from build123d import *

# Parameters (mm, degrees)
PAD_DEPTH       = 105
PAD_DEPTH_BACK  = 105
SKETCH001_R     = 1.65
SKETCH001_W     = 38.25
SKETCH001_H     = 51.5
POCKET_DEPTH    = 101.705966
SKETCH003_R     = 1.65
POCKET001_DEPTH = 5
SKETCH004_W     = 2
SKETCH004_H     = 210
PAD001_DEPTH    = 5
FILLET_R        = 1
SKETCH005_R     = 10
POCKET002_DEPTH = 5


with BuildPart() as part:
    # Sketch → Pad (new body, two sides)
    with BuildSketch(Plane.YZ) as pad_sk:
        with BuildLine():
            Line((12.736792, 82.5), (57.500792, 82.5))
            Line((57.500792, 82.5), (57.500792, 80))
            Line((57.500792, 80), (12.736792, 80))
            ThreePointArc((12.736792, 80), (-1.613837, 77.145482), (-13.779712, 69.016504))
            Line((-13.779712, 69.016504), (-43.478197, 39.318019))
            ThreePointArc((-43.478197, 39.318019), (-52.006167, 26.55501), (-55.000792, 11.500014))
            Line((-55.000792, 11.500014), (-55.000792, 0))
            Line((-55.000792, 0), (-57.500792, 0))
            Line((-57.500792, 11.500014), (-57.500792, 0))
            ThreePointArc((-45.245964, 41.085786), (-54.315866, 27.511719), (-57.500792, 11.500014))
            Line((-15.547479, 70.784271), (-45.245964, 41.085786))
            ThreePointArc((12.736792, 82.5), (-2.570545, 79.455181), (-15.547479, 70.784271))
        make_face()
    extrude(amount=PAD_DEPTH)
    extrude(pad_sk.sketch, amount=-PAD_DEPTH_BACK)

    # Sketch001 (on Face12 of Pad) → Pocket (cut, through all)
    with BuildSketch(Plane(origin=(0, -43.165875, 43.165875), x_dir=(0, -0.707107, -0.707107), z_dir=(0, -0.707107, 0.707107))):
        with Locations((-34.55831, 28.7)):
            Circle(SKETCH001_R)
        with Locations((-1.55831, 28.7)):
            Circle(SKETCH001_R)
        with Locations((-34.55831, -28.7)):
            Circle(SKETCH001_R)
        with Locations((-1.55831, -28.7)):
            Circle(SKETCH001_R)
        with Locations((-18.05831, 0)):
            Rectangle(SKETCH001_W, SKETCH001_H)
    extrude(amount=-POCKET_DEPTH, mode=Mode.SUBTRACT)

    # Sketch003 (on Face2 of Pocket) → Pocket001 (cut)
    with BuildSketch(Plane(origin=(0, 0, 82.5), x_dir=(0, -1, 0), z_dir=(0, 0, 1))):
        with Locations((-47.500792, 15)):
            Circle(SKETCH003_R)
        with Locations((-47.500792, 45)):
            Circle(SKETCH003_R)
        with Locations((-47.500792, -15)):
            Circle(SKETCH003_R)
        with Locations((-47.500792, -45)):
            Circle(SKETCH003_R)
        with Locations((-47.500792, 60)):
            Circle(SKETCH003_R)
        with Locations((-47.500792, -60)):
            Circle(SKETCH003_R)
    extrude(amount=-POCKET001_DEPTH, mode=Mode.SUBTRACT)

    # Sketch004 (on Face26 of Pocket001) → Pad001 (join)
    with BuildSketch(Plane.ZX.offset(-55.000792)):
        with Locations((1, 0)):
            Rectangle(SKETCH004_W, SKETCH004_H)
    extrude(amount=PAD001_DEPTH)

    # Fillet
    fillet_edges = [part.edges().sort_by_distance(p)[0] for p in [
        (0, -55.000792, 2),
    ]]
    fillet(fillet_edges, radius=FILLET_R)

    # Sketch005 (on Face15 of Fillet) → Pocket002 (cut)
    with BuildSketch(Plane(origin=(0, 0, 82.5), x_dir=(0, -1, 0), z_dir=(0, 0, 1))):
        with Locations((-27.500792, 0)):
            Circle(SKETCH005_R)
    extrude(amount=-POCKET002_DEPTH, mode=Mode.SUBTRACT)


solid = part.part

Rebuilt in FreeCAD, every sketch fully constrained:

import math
import FreeCAD as App
import Part
import Sketcher

V = App.Vector
Q = App.Units.Quantity


def edges_at(feature, points):
    """Names of the edges that pass closest to the given points."""
    edges = feature.Shape.Edges
    near = lambda p: min(range(len(edges)), key=lambda i: edges[i].distToShape(Part.Vertex(*p))[0])
    return sorted({f"Edge{near(p) + 1}" for p in points})

doc = App.newDocument("Part")
body = doc.addObject("PartDesign::Body", "Body")

sketch1 = body.newObject("Sketcher::SketchObject", "Sketch")
sketch1.AttachmentSupport = (doc.getObject("YZ_Plane"), [""])
sketch1.MapMode = "FlatFace"
sketch1.addGeometry([
    Part.LineSegment(V(57.5, 82.5, 0), V(12.7, 82.5, 0)),
    Part.ArcOfCircle(Part.Circle(V(12.7, 42.5, 0), V(0, 0, 1), 40), math.radians(90), math.radians(135)),
    Part.LineSegment(V(-15.5, 70.8, 0), V(-45.2, 41.1, 0)),
    Part.ArcOfCircle(Part.Circle(V(-15.7, 11.5, 0), V(0, 0, 1), 41.8), math.radians(135), math.radians(180)),
    Part.LineSegment(V(-57.5, 11.5, 0), V(-57.5, 0, 0)),
    Part.LineSegment(V(-57.5, 0, 0), V(-55, 0, 0)),
    Part.LineSegment(V(-55, 0, 0), V(-55, 11.5, 0)),
    Part.ArcOfCircle(Part.Circle(V(-15.7, 11.5, 0), V(0, 0, 1), 39.3), math.radians(135), math.radians(180)),
    Part.LineSegment(V(-43.5, 39.3, 0), V(-13.8, 69, 0)),
    Part.ArcOfCircle(Part.Circle(V(12.7, 42.5, 0), V(0, 0, 1), 37.5), math.radians(90), math.radians(135)),
    Part.LineSegment(V(12.7, 80, 0), V(57.5, 80, 0)),
    Part.LineSegment(V(57.5, 80, 0), V(57.5, 82.5, 0)),
], False)
sketch1.addConstraint([
    Sketcher.Constraint("Tangent", 0, 2, 1, 1),
    Sketcher.Constraint("Tangent", 1, 2, 2, 1),
    Sketcher.Constraint("Tangent", 2, 2, 3, 1),
    Sketcher.Constraint("Tangent", 3, 2, 4, 1),
    Sketcher.Constraint("Coincident", 4, 2, 5, 1),
    Sketcher.Constraint("Coincident", 5, 2, 6, 1),
    Sketcher.Constraint("Tangent", 6, 2, 7, 2),
    Sketcher.Constraint("Tangent", 7, 1, 8, 1),
    Sketcher.Constraint("Tangent", 8, 2, 9, 2),
    Sketcher.Constraint("Tangent", 9, 1, 10, 1),
    Sketcher.Constraint("Coincident", 10, 2, 11, 1),
    Sketcher.Constraint("Coincident", 11, 2, 0, 1),
    Sketcher.Constraint("Horizontal", 0),
    Sketcher.Constraint("Vertical", 4),
    Sketcher.Constraint("Horizontal", 5),
    Sketcher.Constraint("Vertical", 6),
    Sketcher.Constraint("Horizontal", 10),
    Sketcher.Constraint("Vertical", 11),
    Sketcher.Constraint("Coincident", 7, 3, 3, 3),
    Sketcher.Constraint("Coincident", 9, 3, 1, 3),
    Sketcher.Constraint("PointOnObject", 4, 2, -1),
    Sketcher.Constraint("Parallel", 2, 8),
    Sketcher.Constraint("Radius", 9, 37.500001),
    Sketcher.Constraint("Angle", 2, Q("-135 deg")),
    Sketcher.Constraint("Distance", 2, 42.0),
    Sketcher.Constraint("DistanceX", 5, 1, 5, 2, 2.5),
    Sketcher.Constraint("DistanceY", -1, 1, 9, 1, 80.0),
    Sketcher.Constraint("Radius", 7, 39.3406),
    Sketcher.Constraint("DistanceX", 0, 2, 0, 1, 44.764),
    Sketcher.Constraint("DistanceX", 7, 3, -1, 1, 15.660192),
])
pad1 = body.newObject("PartDesign::Pad", "Pad")
pad1.Profile = sketch1
pad1.Type = "TwoLengths"
pad1.Length = 105
pad1.Length2 = 105

sketch2 = body.newObject("Sketcher::SketchObject", "Sketch001")
sketch2.Placement = App.Placement(V(0, -43.165875, 43.165875), App.Rotation(V(0, -0.707106781, -0.707106781), V(0.999999999, 0, 0), V(0, -0.707106781, 0.707106781), "ZXY"))
sketch2.addGeometry([
    Part.Circle(V(-34.6, 28.7, 0), V(0, 0, 1), 1.6),
    Part.Circle(V(-1.6, 28.7, 0), V(0, 0, 1), 1.6),
    Part.Circle(V(-34.6, -28.7, 0), V(0, 0, 1), 1.6),
    Part.Circle(V(-1.6, -28.7, 0), V(0, 0, 1), 1.6),
    Part.LineSegment(V(-37.2, 25.7, 0), V(-37.2, -25.7, 0)),
    Part.LineSegment(V(-37.2, -25.7, 0), V(1.1, -25.7, 0)),
    Part.LineSegment(V(1.1, -25.7, 0), V(1.1, 25.7, 0)),
    Part.LineSegment(V(1.1, 25.7, 0), V(-37.2, 25.7, 0)),
], False)
sketch2.addConstraint([
    Sketcher.Constraint("Coincident", 4, 2, 5, 1),
    Sketcher.Constraint("Coincident", 5, 2, 6, 1),
    Sketcher.Constraint("Coincident", 6, 2, 7, 1),
    Sketcher.Constraint("Coincident", 7, 2, 4, 1),
    Sketcher.Constraint("Vertical", 4),
    Sketcher.Constraint("Horizontal", 5),
    Sketcher.Constraint("Vertical", 6),
    Sketcher.Constraint("Horizontal", 7),
    Sketcher.Constraint("Equal", 0, 1),
    Sketcher.Constraint("Equal", 1, 2),
    Sketcher.Constraint("Equal", 2, 3),
    Sketcher.Constraint("Symmetric", 0, 3, 2, 3, -1),
    Sketcher.Constraint("Symmetric", 1, 3, 3, 3, -1),
    Sketcher.Constraint("Horizontal", 0, 3, 1, 3),
    Sketcher.Constraint("Diameter", 0, 3.3),
    Sketcher.Constraint("DistanceY", 4, 2, 4, 1, 51.5),
    Sketcher.Constraint("DistanceX", 0, 3, 1, 3, 33.0),
    Sketcher.Constraint("DistanceX", 5, 1, 5, 2, 38.25),
    Sketcher.Constraint("DistanceY", -1, 1, 0, 3, 28.7),
    Sketcher.Constraint("DistanceY", 4, 2, -1, 1, 25.75),
    Sketcher.Constraint("DistanceX", 4, 2, 2, 3, 2.625),
    Sketcher.Constraint("DistanceX", 0, 3, -1, 1, 34.55831),
])
pocket1 = body.newObject("PartDesign::Pocket", "Pocket")
pocket1.Profile = sketch2
pocket1.Type = "ThroughAll"

sketch3 = body.newObject("Sketcher::SketchObject", "Sketch002")
sketch3.AttachmentSupport = (doc.getObject("XY_Plane"), [""])
sketch3.MapMode = "FlatFace"
sketch3.AttachmentOffset = App.Placement(V(0, 0, 82.5), App.Rotation())
sketch3.addGeometry([
    Part.Circle(V(15, 47.5, 0), V(0, 0, 1), 1.6),
    Part.Circle(V(45, 47.5, 0), V(0, 0, 1), 1.6),
    Part.Circle(V(-15, 47.5, 0), V(0, 0, 1), 1.6),
    Part.Circle(V(-45, 47.5, 0), V(0, 0, 1), 1.6),
    Part.Circle(V(60, 47.5, 0), V(0, 0, 1), 1.6),
    Part.Circle(V(-60, 47.5, 0), V(0, 0, 1), 1.6),
], False)
sketch3.addConstraint([
    Sketcher.Constraint("Equal", 0, 1),
    Sketcher.Constraint("Equal", 1, 2),
    Sketcher.Constraint("Equal", 2, 3),
    Sketcher.Constraint("Equal", 3, 4),
    Sketcher.Constraint("Equal", 4, 5),
    Sketcher.Constraint("Symmetric", 0, 3, 2, 3, -2),
    Sketcher.Constraint("Symmetric", 1, 3, 3, 3, -2),
    Sketcher.Constraint("Symmetric", 4, 3, 5, 3, -2),
    Sketcher.Constraint("Horizontal", 0, 3, 1, 3),
    Sketcher.Constraint("Horizontal", 3, 3, 4, 3),
    Sketcher.Constraint("Diameter", 0, 3.3),
    Sketcher.Constraint("DistanceX", -1, 1, 0, 3, 15.0),
    Sketcher.Constraint("DistanceX", -1, 1, 1, 3, 45.0),
    Sketcher.Constraint("DistanceX", -1, 1, 4, 3, 60.0),
    Sketcher.Constraint("DistanceY", -1, 1, 0, 3, 47.500792),
])
pocket2 = body.newObject("PartDesign::Pocket", "Pocket001")
pocket2.Profile = sketch3
pocket2.Length = 5

sketch4 = body.newObject("Sketcher::SketchObject", "Sketch003")
sketch4.AttachmentSupport = (doc.getObject("XZ_Plane"), [""])
sketch4.MapMode = "FlatFace"
sketch4.AttachmentOffset = App.Placement(V(0, 0, 55.000792), App.Rotation())
sketch4.addGeometry([
    Part.LineSegment(V(105, 0, 0), V(-105, 0, 0)),
    Part.LineSegment(V(-105, 0, 0), V(-105, 2, 0)),
    Part.LineSegment(V(-105, 2, 0), V(105, 2, 0)),
    Part.LineSegment(V(105, 2, 0), V(105, 0, 0)),
], False)
sketch4.addConstraint([
    Sketcher.Constraint("Coincident", 0, 2, 1, 1),
    Sketcher.Constraint("Coincident", 1, 2, 2, 1),
    Sketcher.Constraint("Coincident", 2, 2, 3, 1),
    Sketcher.Constraint("Coincident", 3, 2, 0, 1),
    Sketcher.Constraint("Horizontal", 0),
    Sketcher.Constraint("Vertical", 1),
    Sketcher.Constraint("Horizontal", 2),
    Sketcher.Constraint("Vertical", 3),
    Sketcher.Constraint("Symmetric", 0, 2, 3, 2, -1, 1),
    Sketcher.Constraint("DistanceX", 0, 2, 0, 1, 210.0),
    Sketcher.Constraint("DistanceY", 1, 1, 1, 2, 2.0),
])
pad2 = body.newObject("PartDesign::Pad", "Pad001")
pad2.Profile = sketch4
pad2.Length = 5
pad2.Reversed = True
doc.recompute()

fillet = body.newObject("PartDesign::Fillet", "Fillet")
fillet.Base = (pad2, edges_at(pad2, [(0, -55.001, 2)]))
fillet.Radius = 1

sketch5 = body.newObject("Sketcher::SketchObject", "Sketch004")
sketch5.AttachmentSupport = (doc.getObject("XY_Plane"), [""])
sketch5.MapMode = "FlatFace"
sketch5.AttachmentOffset = App.Placement(V(0, 0, 82.5), App.Rotation())
sketch5.addGeometry(Part.Circle(V(0, 28, 0), V(0, 0, 1), 10), False)
sketch5.addConstraint([
    Sketcher.Constraint("PointOnObject", 0, 3, -2),
    Sketcher.Constraint("Diameter", 0, 20.0),
    Sketcher.Constraint("DistanceY", -1, 1, 0, 3, 27.500792),
])
pocket3 = body.newObject("PartDesign::Pocket", "Pocket002")
pocket3.Profile = sketch5
pocket3.Length = 5

doc.recompute()
